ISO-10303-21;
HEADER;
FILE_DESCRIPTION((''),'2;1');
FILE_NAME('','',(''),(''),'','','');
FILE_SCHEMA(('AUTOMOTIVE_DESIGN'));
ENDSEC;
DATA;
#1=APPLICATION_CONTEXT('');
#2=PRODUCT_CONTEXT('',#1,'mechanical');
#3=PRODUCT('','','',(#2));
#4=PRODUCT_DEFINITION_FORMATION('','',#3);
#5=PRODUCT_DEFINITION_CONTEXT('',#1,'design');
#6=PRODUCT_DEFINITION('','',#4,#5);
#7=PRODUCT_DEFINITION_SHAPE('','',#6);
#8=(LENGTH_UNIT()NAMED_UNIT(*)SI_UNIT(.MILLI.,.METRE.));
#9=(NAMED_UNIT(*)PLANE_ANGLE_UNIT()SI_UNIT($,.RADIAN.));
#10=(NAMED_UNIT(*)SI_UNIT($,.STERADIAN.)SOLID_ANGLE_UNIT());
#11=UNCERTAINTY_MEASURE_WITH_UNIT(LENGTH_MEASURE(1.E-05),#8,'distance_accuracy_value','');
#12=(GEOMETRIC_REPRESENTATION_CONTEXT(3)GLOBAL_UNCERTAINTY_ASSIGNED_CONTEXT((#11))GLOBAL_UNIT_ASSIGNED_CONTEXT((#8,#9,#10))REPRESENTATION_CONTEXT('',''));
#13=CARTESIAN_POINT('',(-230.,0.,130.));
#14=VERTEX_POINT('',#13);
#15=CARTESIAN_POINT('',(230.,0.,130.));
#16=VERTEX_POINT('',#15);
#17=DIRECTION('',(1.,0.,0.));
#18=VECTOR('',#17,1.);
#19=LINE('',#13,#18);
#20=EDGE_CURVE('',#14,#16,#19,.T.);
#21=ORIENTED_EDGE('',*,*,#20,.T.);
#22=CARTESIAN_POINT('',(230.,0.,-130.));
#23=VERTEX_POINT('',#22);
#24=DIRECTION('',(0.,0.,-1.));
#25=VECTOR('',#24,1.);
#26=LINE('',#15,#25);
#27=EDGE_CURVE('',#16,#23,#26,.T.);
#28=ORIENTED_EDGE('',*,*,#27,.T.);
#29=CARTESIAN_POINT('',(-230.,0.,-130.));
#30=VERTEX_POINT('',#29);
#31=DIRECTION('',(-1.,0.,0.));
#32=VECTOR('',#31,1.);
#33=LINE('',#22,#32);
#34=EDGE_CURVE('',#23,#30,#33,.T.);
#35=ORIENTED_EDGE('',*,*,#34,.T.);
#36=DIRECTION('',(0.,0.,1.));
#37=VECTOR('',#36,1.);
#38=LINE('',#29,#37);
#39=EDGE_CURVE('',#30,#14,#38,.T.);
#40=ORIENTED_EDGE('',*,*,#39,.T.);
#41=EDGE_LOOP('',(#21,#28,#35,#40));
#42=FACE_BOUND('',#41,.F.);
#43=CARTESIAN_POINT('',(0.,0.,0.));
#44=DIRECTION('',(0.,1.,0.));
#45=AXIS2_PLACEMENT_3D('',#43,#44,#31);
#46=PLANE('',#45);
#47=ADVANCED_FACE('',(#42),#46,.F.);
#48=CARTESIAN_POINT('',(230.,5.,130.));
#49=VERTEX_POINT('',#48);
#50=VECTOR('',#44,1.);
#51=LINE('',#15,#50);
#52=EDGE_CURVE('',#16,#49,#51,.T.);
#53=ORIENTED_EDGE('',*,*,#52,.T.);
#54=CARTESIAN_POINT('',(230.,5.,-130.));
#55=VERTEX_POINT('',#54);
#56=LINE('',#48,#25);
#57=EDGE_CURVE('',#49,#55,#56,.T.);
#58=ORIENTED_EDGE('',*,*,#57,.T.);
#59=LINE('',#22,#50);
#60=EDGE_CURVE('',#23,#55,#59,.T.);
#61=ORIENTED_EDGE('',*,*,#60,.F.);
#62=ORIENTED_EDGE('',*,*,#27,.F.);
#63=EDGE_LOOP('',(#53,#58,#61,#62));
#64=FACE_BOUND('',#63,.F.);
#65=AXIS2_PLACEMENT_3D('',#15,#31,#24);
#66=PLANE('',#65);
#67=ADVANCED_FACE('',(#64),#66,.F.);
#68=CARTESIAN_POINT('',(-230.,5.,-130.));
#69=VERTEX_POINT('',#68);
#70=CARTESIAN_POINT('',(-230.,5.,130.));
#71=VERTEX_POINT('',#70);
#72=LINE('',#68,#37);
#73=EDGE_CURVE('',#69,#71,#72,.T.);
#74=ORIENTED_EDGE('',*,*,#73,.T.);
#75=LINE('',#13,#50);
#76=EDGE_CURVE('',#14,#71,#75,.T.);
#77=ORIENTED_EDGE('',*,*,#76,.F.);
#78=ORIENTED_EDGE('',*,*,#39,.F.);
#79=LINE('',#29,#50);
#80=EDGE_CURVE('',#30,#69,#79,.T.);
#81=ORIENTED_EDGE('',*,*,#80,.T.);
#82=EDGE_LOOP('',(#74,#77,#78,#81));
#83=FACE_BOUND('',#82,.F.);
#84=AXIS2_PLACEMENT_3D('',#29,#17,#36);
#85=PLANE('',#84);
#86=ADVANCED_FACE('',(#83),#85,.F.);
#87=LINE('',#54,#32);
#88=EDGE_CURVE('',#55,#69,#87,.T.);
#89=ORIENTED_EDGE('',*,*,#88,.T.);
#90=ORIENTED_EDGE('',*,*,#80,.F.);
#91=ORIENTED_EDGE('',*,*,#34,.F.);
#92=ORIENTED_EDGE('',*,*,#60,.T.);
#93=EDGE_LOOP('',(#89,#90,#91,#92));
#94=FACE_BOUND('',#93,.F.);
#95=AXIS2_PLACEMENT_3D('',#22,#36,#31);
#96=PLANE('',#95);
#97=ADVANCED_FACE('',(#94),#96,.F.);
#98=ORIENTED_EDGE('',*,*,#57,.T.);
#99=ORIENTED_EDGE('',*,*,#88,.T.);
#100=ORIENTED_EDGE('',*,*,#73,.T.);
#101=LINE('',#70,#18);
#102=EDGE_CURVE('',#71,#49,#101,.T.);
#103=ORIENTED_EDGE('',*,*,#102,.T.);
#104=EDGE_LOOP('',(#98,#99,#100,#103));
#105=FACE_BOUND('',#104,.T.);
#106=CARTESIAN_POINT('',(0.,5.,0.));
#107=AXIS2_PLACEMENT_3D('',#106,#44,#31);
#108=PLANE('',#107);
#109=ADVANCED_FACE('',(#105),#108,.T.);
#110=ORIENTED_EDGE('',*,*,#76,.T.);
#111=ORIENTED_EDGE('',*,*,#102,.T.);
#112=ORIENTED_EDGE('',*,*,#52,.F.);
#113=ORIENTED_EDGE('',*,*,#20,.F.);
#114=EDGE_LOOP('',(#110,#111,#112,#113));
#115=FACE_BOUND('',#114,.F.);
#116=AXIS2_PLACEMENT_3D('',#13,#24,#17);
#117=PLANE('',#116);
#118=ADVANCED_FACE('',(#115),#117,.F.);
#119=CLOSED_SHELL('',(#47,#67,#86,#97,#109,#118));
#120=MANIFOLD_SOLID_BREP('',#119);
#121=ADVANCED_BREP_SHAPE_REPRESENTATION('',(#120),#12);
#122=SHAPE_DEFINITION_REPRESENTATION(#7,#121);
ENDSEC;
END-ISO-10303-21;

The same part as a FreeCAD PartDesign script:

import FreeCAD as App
import Part
import Sketcher
Q = App.Units.Quantity

doc = App.newDocument("Part")
body = doc.addObject("PartDesign::Body", "Body")

# Sketch on XZ plane
sketch1 = body.newObject("Sketcher::SketchObject", "Sketch")
sketch1.AttachmentSupport = (doc.getObject("XZ_Plane"), [""])
sketch1.MapMode = "FlatFace"
sketch1.addGeometry([
    Part.LineSegment(App.Vector(-230, -130, 0), App.Vector(-230, 130, 0)),
    Part.LineSegment(App.Vector(-230, 130, 0), App.Vector(230, 130, 0)),
    Part.LineSegment(App.Vector(230, 130, 0), App.Vector(230, -130, 0)),
    Part.LineSegment(App.Vector(230, -130, 0), App.Vector(-230, -130, 0)),
], False)
sketch1.addConstraint([
    Sketcher.Constraint("Coincident", 0, 2, 1, 1),
    Sketcher.Constraint("Coincident", 1, 2, 2, 1),
    Sketcher.Constraint("Coincident", 2, 2, 3, 1),
    Sketcher.Constraint("Coincident", 3, 2, 0, 1),
    Sketcher.Constraint("Vertical", 0),
    Sketcher.Constraint("Horizontal", 1),
    Sketcher.Constraint("Vertical", 2),
    Sketcher.Constraint("Horizontal", 3),
    Sketcher.Constraint("Symmetric", 0, 2, 2, 2, -1, 1),
    Sketcher.Constraint("DistanceX", 1, 1, 1, 2, Q("460 mm")),
    Sketcher.Constraint("DistanceY", 0, 1, 0, 2, Q("260 mm")),
])
pad1 = body.newObject("PartDesign::Pad", "Pad")
pad1.Profile = sketch1
pad1.Length = 5
pad1.Reversed = True

doc.recompute()
